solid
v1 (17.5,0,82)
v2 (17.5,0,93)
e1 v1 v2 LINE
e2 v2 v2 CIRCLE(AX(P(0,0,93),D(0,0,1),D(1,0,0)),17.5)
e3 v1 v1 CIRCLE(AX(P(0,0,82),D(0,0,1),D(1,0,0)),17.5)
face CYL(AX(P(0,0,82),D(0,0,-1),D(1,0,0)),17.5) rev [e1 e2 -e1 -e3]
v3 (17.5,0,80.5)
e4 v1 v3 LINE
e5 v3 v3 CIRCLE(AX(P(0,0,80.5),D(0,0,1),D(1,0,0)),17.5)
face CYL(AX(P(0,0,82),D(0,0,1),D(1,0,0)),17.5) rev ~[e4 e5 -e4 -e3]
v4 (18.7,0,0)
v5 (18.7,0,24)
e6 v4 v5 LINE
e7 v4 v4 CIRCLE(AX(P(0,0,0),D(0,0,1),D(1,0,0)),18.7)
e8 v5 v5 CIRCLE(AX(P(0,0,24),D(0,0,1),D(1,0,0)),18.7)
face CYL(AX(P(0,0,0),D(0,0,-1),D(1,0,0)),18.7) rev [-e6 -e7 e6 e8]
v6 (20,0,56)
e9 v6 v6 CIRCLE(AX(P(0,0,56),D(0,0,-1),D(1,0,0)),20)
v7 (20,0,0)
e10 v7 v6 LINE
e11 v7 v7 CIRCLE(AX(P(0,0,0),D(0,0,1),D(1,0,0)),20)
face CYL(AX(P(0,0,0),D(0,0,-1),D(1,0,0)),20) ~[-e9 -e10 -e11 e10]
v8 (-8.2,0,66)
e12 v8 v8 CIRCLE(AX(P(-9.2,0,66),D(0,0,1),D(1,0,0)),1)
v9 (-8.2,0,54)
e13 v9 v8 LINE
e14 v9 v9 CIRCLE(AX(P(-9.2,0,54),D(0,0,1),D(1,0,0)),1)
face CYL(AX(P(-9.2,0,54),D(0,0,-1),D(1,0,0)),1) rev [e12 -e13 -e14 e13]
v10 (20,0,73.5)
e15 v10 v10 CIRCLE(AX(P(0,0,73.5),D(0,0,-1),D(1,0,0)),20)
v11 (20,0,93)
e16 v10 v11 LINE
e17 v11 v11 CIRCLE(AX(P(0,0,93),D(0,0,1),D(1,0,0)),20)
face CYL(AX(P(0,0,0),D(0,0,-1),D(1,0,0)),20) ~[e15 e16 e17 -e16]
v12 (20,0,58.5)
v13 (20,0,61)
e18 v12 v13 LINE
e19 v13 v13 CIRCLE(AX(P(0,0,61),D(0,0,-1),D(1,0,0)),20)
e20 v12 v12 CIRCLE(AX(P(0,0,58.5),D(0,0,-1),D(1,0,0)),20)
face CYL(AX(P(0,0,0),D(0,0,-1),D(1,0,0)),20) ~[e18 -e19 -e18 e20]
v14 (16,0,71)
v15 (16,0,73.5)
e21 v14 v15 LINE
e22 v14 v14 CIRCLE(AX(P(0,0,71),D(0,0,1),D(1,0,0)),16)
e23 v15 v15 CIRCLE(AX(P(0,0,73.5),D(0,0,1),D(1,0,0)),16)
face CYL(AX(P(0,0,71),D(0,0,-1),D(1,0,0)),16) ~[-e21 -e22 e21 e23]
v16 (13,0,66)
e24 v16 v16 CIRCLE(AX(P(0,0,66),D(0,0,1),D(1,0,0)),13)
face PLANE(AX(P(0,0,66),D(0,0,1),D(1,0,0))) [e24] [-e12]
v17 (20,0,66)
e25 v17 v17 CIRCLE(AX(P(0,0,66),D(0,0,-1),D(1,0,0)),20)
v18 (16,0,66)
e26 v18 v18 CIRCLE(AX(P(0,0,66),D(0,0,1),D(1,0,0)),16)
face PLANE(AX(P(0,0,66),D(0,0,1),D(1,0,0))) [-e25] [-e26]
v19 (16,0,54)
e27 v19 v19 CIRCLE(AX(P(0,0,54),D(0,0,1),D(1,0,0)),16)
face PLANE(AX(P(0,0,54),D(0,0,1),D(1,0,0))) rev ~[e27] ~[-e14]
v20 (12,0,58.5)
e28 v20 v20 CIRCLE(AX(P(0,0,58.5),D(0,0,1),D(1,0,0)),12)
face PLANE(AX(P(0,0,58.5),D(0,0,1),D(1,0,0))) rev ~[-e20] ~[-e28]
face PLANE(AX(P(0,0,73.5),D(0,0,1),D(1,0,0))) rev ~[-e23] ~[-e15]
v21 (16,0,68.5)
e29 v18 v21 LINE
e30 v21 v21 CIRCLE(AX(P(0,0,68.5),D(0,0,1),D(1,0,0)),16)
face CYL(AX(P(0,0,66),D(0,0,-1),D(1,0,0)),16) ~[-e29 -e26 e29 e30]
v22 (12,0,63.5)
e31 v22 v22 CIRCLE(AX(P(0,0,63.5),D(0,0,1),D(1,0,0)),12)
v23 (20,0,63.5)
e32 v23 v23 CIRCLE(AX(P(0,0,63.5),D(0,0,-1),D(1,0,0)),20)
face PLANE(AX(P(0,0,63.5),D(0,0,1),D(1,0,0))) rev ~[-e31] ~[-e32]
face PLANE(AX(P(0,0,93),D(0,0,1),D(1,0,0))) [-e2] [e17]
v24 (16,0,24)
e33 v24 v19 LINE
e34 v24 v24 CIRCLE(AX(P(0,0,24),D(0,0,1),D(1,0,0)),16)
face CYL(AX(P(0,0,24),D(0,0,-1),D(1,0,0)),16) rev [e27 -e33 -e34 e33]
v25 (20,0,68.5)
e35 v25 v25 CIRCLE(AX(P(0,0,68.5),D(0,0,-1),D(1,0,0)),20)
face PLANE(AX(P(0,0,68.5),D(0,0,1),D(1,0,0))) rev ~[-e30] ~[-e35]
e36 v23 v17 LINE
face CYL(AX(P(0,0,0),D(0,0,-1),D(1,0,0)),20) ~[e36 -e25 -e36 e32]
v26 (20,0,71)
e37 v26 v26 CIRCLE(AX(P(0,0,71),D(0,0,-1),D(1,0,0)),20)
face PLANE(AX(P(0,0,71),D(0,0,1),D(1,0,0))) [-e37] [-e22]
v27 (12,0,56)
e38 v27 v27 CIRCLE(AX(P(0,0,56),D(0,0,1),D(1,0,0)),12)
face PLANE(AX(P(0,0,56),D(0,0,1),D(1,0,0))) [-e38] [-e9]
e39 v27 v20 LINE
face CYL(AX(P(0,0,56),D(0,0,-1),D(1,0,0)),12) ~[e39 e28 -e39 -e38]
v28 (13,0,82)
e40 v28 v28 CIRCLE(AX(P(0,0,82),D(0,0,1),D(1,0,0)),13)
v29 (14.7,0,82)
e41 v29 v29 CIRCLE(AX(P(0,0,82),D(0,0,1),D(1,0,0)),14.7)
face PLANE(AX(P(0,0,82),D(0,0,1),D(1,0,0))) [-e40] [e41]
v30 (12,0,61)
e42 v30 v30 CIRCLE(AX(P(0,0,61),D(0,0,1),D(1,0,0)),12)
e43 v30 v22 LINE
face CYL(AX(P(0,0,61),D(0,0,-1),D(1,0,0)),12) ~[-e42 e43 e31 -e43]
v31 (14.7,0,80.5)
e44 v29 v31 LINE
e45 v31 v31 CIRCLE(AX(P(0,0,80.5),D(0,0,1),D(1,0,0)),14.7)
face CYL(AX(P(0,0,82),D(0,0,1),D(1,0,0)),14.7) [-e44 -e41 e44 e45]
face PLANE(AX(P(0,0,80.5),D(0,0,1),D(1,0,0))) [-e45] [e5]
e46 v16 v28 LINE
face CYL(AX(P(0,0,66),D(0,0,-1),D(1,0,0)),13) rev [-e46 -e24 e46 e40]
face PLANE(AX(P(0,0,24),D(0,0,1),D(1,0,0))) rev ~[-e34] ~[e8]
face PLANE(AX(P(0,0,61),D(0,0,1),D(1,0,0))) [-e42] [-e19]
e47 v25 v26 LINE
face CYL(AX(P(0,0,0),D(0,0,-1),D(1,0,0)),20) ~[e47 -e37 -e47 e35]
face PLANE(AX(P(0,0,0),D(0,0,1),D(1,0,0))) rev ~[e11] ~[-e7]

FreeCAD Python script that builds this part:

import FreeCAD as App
import Part
import Sketcher
Q = App.Units.Quantity

doc = App.newDocument("Part")
body = doc.addObject("PartDesign::Body", "Body")

# Sketch on XY plane
sketch1 = body.newObject("Sketcher::SketchObject", "Sketch")
sketch1.AttachmentSupport = (doc.getObject("XY_Plane"), [""])
sketch1.MapMode = "FlatFace"
sketch1.addGeometry(Part.Circle(App.Vector(0, 0, 0), App.Vector(0, 0, 1), 19), False)
sketch1.addConstraint([
    Sketcher.Constraint("Coincident", 0, 3, -1, 1),
    Sketcher.Constraint("Diameter", 0, Q("37.4 mm")),
])
pad1 = body.newObject("PartDesign::Pad", "Pad")
pad1.Profile = sketch1
pad1.Length = 24

# Sketch on XY plane
sketch2 = body.newObject("Sketcher::SketchObject", "Sketch001")
sketch2.AttachmentSupport = (doc.getObject("XY_Plane"), [""])
sketch2.MapMode = "FlatFace"
sketch2.AttachmentOffset = App.Placement(App.Vector(0, 0, 24), App.Rotation())
sketch2.addGeometry(Part.Circle(App.Vector(0, 0, 0), App.Vector(0, 0, 1), 16), False)
sketch2.addConstraint([
    Sketcher.Constraint("Coincident", 0, 3, -1, 1),
    Sketcher.Constraint("Diameter", 0, Q("32 mm")),
])
pad2 = body.newObject("PartDesign::Pad", "Pad001")
pad2.Profile = sketch2
pad2.Length = 30

# Sketch on XY plane
sketch3 = body.newObject("Sketcher::SketchObject", "Sketch002")
sketch3.AttachmentSupport = (doc.getObject("XY_Plane"), [""])
sketch3.MapMode = "FlatFace"
sketch3.AttachmentOffset = App.Placement(App.Vector(0, 0, 54), App.Rotation())
sketch3.addGeometry(Part.Circle(App.Vector(-9.2, 0, 0), App.Vector(0, 0, 1), 1), False)
sketch3.addConstraint([
    Sketcher.Constraint("PointOnObject", 0, 3, -1),
    Sketcher.Constraint("Diameter", 0, Q("2 mm")),
    Sketcher.Constraint("DistanceX", 0, 3, -1, 1, Q("9.2 mm")),
])
pad3 = body.newObject("PartDesign::Pad", "Pad002")
pad3.Profile = sketch3
pad3.Length = 12

# Sketch on XY plane
sketch4 = body.newObject("Sketcher::SketchObject", "Sketch003")
sketch4.AttachmentSupport = (doc.getObject("XY_Plane"), [""])
sketch4.MapMode = "FlatFace"
sketch4.AttachmentOffset = App.Placement(App.Vector(0, 0, 66), App.Rotation())
sketch4.addGeometry(Part.Circle(App.Vector(0, 0, 0), App.Vector(0, 0, 1), 13), False)
sketch4.addConstraint([
    Sketcher.Constraint("Coincident", 0, 3, -1, 1),
    Sketcher.Constraint("Diameter", 0, Q("26 mm")),
])
pad4 = body.newObject("PartDesign::Pad", "Pad003")
pad4.Profile = sketch4
pad4.Length = 16

# Sketch on XY plane
sketch5 = body.newObject("Sketcher::SketchObject", "Sketch004")
sketch5.AttachmentSupport = (doc.getObject("XY_Plane"), [""])
sketch5.MapMode = "FlatFace"
sketch5.AttachmentOffset = App.Placement(App.Vector(0, 0, 82), App.Rotation())
sketch5.addGeometry(Part.Circle(App.Vector(0, 0, 0), App.Vector(0, 0, 1), 18), False)
sketch5.addConstraint([
    Sketcher.Constraint("Coincident", 0, 3, -1, 1),
    Sketcher.Constraint("Diameter", 0, Q("35 mm")),
])
pad5 = body.newObject("PartDesign::Pad", "Pad004")
pad5.Profile = sketch5
pad5.Length = 11
body2 = doc.addObject("PartDesign::Body", "Body001")

# Sketch on XY plane
sketch6 = body2.newObject("Sketcher::SketchObject", "Sketch005")
sketch6.AttachmentSupport = (doc.getObject("XY_Plane001"), [""])
sketch6.MapMode = "FlatFace"
sketch6.AttachmentOffset = App.Placement(App.Vector(0, 0, 56), App.Rotation())
sketch6.addGeometry([
    Part.Circle(App.Vector(0, 0, 0), App.Vector(0, 0, 1), 22),
    Part.Circle(App.Vector(0, 0, 0), App.Vector(0, 0, 1), 12),
], False)
sketch6.addConstraint([
    Sketcher.Constraint("Coincident", 0, 3, -1, 1),
    Sketcher.Constraint("Coincident", 1, 3, -1, 1),
    Sketcher.Constraint("Diameter", 0, Q("44 mm")),
    Sketcher.Constraint("Diameter", 1, Q("24 mm")),
])
pad6 = body2.newObject("PartDesign::Pad", "Pad005")
pad6.Profile = sketch6
pad6.Length = 2.5
body3 = doc.addObject("PartDesign::Body", "Body002")

# Sketch on XY plane
sketch7 = body3.newObject("Sketcher::SketchObject", "Sketch006")
sketch7.AttachmentSupport = (doc.getObject("XY_Plane002"), [""])
sketch7.MapMode = "FlatFace"
sketch7.AttachmentOffset = App.Placement(App.Vector(0, 0, 61), App.Rotation())
sketch7.addGeometry([
    Part.Circle(App.Vector(0, 0, 0), App.Vector(0, 0, 1), 22),
    Part.Circle(App.Vector(0, 0, 0), App.Vector(0, 0, 1), 12),
], False)
sketch7.addConstraint([
    Sketcher.Constraint("Coincident", 0, 3, -1, 1),
    Sketcher.Constraint("Coincident", 1, 3, -1, 1),
    Sketcher.Constraint("Diameter", 0, Q("44 mm")),
    Sketcher.Constraint("Diameter", 1, Q("24 mm")),
])
pad7 = body3.newObject("PartDesign::Pad", "Pad006")
pad7.Profile = sketch7
pad7.Length = 2.5
body4 = doc.addObject("PartDesign::Body", "Body003")

# Sketch on XY plane
sketch8 = body4.newObject("Sketcher::SketchObject", "Sketch007")
sketch8.AttachmentSupport = (doc.getObject("XY_Plane003"), [""])
sketch8.MapMode = "FlatFace"
sketch8.AttachmentOffset = App.Placement(App.Vector(0, 0, 71), App.Rotation())
sketch8.addGeometry([
    Part.Circle(App.Vector(0, 0, 0), App.Vector(0, 0, 1), 22),
    Part.Circle(App.Vector(0, 0, 0), App.Vector(0, 0, 1), 16),
], False)
sketch8.addConstraint([
    Sketcher.Constraint("Coincident", 0, 3, -1, 1),
    Sketcher.Constraint("Coincident", 1, 3, -1, 1),
    Sketcher.Constraint("Diameter", 0, Q("44 mm")),
    Sketcher.Constraint("Diameter", 1, Q("32 mm")),
])
pad8 = body4.newObject("PartDesign::Pad", "Pad007")
pad8.Profile = sketch8
pad8.Length = 2.5
body5 = doc.addObject("PartDesign::Body", "Body004")

# Sketch on XY plane
sketch9 = body5.newObject("Sketcher::SketchObject", "Sketch008")
sketch9.AttachmentSupport = (doc.getObject("XY_Plane004"), [""])
sketch9.MapMode = "FlatFace"
sketch9.AttachmentOffset = App.Placement(App.Vector(0, 0, 66), App.Rotation())
sketch9.addGeometry([
    Part.Circle(App.Vector(0, 0, 0), App.Vector(0, 0, 1), 22),
    Part.Circle(App.Vector(0, 0, 0), App.Vector(0, 0, 1), 16),
], False)
sketch9.addConstraint([
    Sketcher.Constraint("Coincident", 0, 3, -1, 1),
    Sketcher.Constraint("Coincident", 1, 3, -1, 1),
    Sketcher.Constraint("Diameter", 0, Q("44 mm")),
    Sketcher.Constraint("Diameter", 1, Q("32 mm")),
])
pad9 = body5.newObject("PartDesign::Pad", "Pad008")
pad9.Profile = sketch9
pad9.Length = 2.5
body6 = doc.addObject("PartDesign::Body", "Body005")

# Sketch on XY plane
sketch10 = body6.newObject("Sketcher::SketchObject", "Sketch009")
sketch10.AttachmentSupport = (doc.getObject("XY_Plane005"), [""])
sketch10.MapMode = "FlatFace"
sketch10.addGeometry(Part.Circle(App.Vector(0, 0, 0), App.Vector(0, 0, 1), 20), False)
sketch10.addConstraint([
    Sketcher.Constraint("Coincident", 0, 3, -1, 1),
    Sketcher.Constraint("Diameter", 0, Q("40 mm")),
])
pad10 = body6.newObject("PartDesign::Pad", "Pad009")
pad10.Profile = sketch10
pad10.Length = 93
doc.recompute()

boolean = body6.newObject("PartDesign::Boolean", "Boolean")
boolean.Type = "Cut"
boolean.addObjects([body5])
doc.recompute()

boolean2 = body6.newObject("PartDesign::Boolean", "Boolean001")
boolean2.Type = "Cut"
boolean2.addObjects([body4])
doc.recompute()

boolean3 = body6.newObject("PartDesign::Boolean", "Boolean002")
boolean3.Type = "Cut"
boolean3.addObjects([body3])
doc.recompute()

boolean4 = body6.newObject("PartDesign::Boolean", "Boolean003")
boolean4.Type = "Cut"
boolean4.addObjects([body2])
doc.recompute()

boolean5 = body6.newObject("PartDesign::Boolean", "Boolean004")
boolean5.Type = "Cut"
boolean5.addObjects([body])

# Sketch on XY plane
sketch11 = body6.newObject("Sketcher::SketchObject", "Sketch010")
sketch11.AttachmentSupport = (doc.getObject("XY_Plane005"), [""])
sketch11.MapMode = "FlatFace"
sketch11.AttachmentOffset = App.Placement(App.Vector(0, 0, 82), App.Rotation())
sketch11.addGeometry([
    Part.Circle(App.Vector(0, 0, 0), App.Vector(0, 0, 1), 18),
    Part.Circle(App.Vector(0, 0, 0), App.Vector(0, 0, 1), 15),
], False)
sketch11.addConstraint([
    Sketcher.Constraint("Coincident", 0, 3, -1, 1),
    Sketcher.Constraint("Coincident", 1, 3, -1, 1),
    Sketcher.Constraint("Diameter", 0, Q("35 mm")),
    Sketcher.Constraint("Diameter", 1, Q("29.4 mm")),
])
pocket1 = body6.newObject("PartDesign::Pocket", "Pocket")
pocket1.Profile = sketch11
pocket1.Length = 1.5

doc.recompute()
